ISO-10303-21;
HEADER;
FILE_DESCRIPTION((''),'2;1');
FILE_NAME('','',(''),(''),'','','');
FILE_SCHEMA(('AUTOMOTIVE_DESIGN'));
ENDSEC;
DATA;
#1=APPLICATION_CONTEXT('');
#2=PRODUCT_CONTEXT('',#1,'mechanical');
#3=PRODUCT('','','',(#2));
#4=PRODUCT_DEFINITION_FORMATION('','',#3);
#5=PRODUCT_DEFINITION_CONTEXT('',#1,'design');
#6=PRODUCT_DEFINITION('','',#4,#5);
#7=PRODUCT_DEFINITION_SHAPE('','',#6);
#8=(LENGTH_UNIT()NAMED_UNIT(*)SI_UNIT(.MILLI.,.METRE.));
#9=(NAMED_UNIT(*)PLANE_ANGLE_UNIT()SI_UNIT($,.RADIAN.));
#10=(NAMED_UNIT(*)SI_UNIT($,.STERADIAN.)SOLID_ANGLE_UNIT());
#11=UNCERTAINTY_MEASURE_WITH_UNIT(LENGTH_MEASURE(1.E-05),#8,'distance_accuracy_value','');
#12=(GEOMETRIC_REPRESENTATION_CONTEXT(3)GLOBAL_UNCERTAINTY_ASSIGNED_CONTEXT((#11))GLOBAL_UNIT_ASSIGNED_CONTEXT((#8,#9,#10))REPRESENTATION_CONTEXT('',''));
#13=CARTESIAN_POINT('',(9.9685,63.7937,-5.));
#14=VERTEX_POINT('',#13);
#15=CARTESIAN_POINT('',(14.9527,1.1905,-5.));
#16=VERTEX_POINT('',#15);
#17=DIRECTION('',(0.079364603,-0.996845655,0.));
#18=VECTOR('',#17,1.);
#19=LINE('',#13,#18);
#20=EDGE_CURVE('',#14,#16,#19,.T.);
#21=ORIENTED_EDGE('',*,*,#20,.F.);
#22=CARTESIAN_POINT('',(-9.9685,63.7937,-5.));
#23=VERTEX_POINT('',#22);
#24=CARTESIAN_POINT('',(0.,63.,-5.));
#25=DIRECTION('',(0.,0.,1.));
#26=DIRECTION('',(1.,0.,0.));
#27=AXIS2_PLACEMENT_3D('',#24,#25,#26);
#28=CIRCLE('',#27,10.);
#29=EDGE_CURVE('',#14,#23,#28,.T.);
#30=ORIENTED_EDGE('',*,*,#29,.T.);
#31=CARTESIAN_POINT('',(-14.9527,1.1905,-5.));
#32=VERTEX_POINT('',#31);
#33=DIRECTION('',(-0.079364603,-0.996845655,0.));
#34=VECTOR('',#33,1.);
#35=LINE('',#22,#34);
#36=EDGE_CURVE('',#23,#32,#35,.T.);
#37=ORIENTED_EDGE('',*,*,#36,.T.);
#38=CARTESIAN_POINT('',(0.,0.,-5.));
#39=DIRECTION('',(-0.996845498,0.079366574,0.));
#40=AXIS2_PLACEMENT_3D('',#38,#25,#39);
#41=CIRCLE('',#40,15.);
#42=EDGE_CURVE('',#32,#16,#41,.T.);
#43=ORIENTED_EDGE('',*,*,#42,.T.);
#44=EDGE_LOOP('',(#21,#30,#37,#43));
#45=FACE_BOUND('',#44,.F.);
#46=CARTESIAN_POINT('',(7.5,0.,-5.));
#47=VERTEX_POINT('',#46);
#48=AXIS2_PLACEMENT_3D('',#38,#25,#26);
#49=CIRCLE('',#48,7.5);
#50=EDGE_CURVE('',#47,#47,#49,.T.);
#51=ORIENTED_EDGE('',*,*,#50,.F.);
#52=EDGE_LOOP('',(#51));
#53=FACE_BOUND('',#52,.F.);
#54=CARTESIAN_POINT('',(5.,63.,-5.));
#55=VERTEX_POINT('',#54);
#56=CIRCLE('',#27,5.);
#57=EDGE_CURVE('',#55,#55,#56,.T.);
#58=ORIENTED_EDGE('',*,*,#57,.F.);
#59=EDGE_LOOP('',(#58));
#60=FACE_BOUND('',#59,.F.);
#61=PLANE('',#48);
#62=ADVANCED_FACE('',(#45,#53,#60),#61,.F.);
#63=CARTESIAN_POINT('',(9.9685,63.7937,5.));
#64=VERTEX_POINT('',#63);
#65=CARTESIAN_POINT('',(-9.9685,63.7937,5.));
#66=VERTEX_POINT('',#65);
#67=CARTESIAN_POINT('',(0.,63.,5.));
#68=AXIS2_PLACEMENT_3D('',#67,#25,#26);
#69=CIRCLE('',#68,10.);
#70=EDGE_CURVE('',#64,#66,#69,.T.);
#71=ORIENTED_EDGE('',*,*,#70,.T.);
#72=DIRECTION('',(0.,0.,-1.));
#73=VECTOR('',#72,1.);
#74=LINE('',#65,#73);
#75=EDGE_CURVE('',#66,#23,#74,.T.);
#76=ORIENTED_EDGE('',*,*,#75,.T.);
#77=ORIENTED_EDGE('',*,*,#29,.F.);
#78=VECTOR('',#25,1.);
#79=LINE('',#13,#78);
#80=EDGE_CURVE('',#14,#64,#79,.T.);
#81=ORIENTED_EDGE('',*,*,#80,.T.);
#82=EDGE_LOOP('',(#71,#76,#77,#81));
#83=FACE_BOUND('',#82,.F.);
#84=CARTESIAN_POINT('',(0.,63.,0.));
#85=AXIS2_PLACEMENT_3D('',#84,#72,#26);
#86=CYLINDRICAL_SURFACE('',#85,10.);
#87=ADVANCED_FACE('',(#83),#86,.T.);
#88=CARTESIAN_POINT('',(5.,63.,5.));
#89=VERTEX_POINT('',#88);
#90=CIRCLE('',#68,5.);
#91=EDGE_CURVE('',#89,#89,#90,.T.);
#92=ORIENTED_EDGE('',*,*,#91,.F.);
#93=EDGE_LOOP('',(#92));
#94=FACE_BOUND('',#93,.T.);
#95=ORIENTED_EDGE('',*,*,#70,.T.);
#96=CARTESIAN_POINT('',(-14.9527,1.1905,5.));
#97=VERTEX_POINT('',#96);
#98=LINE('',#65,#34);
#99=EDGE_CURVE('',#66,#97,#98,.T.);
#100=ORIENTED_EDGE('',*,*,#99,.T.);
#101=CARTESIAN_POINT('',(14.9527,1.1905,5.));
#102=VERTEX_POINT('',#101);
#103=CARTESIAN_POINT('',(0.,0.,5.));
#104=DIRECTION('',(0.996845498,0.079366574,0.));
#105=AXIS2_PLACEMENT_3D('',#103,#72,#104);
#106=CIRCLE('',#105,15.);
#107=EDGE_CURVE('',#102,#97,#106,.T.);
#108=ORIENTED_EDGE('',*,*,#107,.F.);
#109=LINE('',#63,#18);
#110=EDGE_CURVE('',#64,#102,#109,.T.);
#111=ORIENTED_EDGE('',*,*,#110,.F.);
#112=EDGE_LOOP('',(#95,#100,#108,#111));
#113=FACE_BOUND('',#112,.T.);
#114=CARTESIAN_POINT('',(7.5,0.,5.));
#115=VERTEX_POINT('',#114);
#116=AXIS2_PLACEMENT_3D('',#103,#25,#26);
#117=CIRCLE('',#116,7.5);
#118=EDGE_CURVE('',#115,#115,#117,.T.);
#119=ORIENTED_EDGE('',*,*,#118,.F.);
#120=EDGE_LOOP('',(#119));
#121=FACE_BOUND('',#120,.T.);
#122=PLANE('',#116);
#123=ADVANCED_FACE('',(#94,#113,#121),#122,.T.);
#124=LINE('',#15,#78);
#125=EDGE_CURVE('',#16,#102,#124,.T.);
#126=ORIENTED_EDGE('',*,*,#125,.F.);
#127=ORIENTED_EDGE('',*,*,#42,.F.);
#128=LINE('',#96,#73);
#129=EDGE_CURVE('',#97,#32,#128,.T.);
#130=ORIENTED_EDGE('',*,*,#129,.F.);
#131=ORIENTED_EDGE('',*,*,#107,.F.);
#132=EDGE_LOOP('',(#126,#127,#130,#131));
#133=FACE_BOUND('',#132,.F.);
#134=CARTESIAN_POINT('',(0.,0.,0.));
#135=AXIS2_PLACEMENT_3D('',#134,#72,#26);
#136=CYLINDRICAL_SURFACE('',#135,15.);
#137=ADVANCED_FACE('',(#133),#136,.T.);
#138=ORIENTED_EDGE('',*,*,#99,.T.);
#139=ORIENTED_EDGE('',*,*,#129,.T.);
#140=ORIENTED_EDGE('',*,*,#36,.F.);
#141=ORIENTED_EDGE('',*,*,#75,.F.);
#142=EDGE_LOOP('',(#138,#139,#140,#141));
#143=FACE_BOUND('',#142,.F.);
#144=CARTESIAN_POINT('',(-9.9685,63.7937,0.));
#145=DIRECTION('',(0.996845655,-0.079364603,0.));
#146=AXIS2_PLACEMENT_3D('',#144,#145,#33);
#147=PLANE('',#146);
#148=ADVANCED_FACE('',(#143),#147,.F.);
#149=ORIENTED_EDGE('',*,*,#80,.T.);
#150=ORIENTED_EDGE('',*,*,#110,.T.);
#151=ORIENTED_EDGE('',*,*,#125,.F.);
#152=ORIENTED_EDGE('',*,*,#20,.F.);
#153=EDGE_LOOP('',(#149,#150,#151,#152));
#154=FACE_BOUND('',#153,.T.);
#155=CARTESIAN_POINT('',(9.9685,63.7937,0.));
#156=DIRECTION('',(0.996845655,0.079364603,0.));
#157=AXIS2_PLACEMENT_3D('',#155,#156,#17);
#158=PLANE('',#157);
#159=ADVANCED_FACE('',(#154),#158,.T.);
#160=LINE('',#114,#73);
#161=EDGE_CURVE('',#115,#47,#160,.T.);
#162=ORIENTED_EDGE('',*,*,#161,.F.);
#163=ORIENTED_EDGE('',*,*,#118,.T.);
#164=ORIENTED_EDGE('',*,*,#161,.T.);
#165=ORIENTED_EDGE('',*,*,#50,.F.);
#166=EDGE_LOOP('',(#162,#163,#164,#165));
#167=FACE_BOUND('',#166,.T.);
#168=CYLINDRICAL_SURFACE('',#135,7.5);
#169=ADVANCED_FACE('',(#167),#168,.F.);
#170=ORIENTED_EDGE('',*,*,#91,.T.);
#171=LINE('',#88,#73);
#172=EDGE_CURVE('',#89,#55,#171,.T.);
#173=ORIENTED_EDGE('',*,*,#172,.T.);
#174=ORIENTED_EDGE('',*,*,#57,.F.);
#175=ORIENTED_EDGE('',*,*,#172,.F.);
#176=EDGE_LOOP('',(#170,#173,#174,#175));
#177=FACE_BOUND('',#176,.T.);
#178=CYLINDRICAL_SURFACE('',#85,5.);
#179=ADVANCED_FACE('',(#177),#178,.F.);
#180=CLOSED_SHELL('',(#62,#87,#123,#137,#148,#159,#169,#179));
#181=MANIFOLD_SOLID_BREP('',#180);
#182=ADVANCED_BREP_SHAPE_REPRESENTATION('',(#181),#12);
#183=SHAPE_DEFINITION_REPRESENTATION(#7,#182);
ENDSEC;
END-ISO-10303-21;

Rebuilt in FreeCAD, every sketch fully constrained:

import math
import FreeCAD as App
import Part
import Sketcher
from FreeCAD import Vector
Q = App.Units.Quantity

doc = App.newDocument("Part")
body = doc.addObject("PartDesign::Body", "Body")

# Sketch on XY plane
sketch1 = body.newObject("Sketcher::SketchObject", "Sketch")
sketch1.AttachmentSupport = (doc.getObject("XY_Plane"), [""])
sketch1.MapMode = "FlatFace"
sketch1.addGeometry(Part.ArcOfCircle(Part.Circle(Vector(0, 0, 0), Vector(0, 0, 1), 15), math.radians(175), math.radians(365)), False)
sketch1.addGeometry(Part.LineSegment(Vector(15, 1, 0), Vector(10, 64, 0)), False)
sketch1.addGeometry(Part.ArcOfCircle(Part.Circle(Vector(0, 63, 0), Vector(0, 0, 1), 10), math.radians(5), math.radians(175)), False)
sketch1.addGeometry(Part.LineSegment(Vector(-10, 64, 0), Vector(-15, 1, 0)), False)
sketch1.addGeometry(Part.Circle(Vector(0, 0, 0), Vector(0, 0, 1), 8), False)
sketch1.addGeometry(Part.Circle(Vector(0, 63, 0), Vector(0, 0, 1), 5), False)
sketch1.addConstraint(Sketcher.Constraint("Tangent", 0, 2, 1, 1))
sketch1.addConstraint(Sketcher.Constraint("Tangent", 1, 2, 2, 1))
sketch1.addConstraint(Sketcher.Constraint("Tangent", 2, 2, 3, 1))
sketch1.addConstraint(Sketcher.Constraint("Tangent", 3, 2, 0, 1))
sketch1.addConstraint(Sketcher.Constraint("Coincident", 0, 3, -1, 1))
sketch1.addConstraint(Sketcher.Constraint("Coincident", 4, 3, -1, 1))
sketch1.addConstraint(Sketcher.Constraint("Coincident", 5, 3, 2, 3))
sketch1.addConstraint(Sketcher.Constraint("PointOnObject", 2, 3, -2))
sketch1.addConstraint(Sketcher.Constraint("Diameter", 4, Q("15 mm")))
sketch1.addConstraint(Sketcher.Constraint("Diameter", 5, Q("10 mm")))
sketch1.addConstraint(Sketcher.Constraint("Radius", 0, Q("15 mm")))
sketch1.addConstraint(Sketcher.Constraint("Radius", 2, Q("10 mm")))
sketch1.addConstraint(Sketcher.Constraint("DistanceY", -1, 1, 2, 3, Q("63 mm")))
pad1 = body.newObject("PartDesign::Pad", "Pad")
pad1.Profile = sketch1
pad1.Length = 10
pad1.Midplane = True

doc.recompute()
